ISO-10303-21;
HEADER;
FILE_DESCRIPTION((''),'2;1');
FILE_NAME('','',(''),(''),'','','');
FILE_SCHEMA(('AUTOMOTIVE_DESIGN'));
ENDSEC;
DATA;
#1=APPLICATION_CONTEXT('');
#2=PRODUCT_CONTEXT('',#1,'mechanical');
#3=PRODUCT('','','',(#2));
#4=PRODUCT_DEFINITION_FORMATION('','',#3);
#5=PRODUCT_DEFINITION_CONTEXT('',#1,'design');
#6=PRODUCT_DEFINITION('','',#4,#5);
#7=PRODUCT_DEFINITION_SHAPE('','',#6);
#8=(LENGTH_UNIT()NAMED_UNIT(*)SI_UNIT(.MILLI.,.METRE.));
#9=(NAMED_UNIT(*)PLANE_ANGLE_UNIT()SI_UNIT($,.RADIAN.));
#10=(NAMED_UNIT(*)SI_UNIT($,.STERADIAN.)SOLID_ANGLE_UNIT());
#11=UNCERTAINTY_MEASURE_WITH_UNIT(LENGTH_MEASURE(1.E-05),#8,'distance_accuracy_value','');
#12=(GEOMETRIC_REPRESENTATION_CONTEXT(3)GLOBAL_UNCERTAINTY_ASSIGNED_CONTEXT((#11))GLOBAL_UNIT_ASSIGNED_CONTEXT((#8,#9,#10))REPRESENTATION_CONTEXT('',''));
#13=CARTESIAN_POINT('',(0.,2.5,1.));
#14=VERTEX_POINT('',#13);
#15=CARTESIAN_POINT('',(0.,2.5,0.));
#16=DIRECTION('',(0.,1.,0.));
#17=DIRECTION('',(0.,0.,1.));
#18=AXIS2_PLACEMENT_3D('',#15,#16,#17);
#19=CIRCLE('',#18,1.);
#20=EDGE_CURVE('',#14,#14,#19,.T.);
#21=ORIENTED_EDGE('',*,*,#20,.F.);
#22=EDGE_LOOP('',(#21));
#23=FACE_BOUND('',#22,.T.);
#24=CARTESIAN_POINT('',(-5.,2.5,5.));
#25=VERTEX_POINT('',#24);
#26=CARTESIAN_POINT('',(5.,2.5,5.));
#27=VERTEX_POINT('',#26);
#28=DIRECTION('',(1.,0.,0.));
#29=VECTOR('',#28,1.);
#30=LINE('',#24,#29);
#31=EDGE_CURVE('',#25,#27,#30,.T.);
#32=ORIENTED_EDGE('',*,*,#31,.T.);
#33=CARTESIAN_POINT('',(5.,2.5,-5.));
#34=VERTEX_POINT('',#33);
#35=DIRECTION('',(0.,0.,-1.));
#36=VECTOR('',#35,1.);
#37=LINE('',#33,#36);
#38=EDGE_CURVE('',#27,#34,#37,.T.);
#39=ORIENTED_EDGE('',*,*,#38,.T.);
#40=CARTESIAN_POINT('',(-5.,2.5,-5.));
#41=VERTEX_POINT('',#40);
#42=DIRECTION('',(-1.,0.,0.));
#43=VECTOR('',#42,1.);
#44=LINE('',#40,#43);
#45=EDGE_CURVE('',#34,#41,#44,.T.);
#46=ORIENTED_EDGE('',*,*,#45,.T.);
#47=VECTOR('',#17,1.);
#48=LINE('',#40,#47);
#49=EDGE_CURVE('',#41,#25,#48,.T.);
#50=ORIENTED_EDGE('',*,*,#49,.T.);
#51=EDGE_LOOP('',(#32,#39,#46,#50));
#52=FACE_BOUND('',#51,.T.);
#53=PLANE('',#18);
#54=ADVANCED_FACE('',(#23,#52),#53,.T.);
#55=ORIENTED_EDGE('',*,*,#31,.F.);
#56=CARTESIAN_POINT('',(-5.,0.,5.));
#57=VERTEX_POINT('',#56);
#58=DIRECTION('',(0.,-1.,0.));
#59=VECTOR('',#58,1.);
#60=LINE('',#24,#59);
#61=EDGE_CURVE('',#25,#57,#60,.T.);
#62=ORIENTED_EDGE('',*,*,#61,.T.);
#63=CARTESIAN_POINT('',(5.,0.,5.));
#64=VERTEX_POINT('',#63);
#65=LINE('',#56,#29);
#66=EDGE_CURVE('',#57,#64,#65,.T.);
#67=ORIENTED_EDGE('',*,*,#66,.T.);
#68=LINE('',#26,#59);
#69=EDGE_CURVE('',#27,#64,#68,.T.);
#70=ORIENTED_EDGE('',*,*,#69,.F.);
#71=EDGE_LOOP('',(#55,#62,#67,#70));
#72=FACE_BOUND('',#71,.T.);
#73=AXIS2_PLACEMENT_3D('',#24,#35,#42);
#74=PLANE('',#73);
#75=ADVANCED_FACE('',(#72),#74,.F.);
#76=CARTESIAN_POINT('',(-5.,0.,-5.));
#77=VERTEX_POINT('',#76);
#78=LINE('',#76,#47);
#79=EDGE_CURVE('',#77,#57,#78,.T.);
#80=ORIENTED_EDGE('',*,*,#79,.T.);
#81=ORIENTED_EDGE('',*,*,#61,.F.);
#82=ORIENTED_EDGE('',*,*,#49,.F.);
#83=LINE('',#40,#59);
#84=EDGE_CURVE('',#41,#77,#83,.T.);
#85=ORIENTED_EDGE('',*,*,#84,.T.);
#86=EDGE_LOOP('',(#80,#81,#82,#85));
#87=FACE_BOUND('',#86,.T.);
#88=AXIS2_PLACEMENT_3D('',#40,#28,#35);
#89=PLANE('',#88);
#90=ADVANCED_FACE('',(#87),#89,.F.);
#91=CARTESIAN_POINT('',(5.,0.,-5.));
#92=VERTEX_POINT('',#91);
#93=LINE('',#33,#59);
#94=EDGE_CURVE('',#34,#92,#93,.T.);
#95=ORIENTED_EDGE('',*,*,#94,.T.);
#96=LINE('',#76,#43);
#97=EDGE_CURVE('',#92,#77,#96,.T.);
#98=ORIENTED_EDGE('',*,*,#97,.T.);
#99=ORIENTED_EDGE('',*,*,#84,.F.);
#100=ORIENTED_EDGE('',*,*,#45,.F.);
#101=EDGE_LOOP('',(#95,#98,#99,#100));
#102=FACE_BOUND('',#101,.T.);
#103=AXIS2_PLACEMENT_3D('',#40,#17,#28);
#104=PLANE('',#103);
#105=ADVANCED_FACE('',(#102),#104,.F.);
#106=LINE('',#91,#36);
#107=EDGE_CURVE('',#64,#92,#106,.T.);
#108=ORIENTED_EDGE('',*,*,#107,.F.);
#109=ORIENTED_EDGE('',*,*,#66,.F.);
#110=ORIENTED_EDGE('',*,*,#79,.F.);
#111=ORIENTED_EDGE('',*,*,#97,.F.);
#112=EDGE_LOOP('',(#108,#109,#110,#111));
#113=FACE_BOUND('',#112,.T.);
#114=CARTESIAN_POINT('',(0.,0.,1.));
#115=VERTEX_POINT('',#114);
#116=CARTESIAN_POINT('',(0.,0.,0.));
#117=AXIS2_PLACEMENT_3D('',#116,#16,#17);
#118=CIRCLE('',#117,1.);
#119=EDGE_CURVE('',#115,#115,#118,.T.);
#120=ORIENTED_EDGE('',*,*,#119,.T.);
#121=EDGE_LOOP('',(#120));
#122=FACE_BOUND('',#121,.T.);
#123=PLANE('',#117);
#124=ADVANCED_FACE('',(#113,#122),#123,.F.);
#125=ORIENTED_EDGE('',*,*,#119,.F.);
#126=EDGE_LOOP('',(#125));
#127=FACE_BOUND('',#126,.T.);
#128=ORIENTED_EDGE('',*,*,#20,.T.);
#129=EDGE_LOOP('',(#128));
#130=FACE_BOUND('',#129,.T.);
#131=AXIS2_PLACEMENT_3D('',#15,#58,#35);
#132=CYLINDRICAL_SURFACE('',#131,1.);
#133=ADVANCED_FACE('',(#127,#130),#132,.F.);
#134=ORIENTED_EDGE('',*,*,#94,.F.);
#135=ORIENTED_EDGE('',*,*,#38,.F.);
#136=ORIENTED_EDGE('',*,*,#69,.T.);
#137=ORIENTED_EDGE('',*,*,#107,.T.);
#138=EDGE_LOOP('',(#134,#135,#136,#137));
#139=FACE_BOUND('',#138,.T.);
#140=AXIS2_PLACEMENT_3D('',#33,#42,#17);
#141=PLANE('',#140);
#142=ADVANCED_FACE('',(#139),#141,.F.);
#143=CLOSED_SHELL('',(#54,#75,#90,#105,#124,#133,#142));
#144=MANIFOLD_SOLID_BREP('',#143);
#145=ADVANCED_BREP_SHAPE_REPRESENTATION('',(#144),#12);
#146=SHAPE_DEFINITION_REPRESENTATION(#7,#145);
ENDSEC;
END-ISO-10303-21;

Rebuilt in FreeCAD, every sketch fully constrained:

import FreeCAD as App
import Part
import Sketcher

V = App.Vector
Q = App.Units.Quantity

doc = App.newDocument("Part")
body = doc.addObject("PartDesign::Body", "Body")

sketch1 = doc.addObject("Sketcher::SketchObject", "Sketch")
body.addObject(sketch1)
sketch1.AttachmentSupport = (doc.XZ_Plane, [""])
sketch1.MapMode = "FlatFace"
sketch1.addGeometry(Part.LineSegment(V(-5, -5, 0), V(-5, 5, 0)), False)
sketch1.addGeometry(Part.LineSegment(V(-5, 5, 0), V(5, 5, 0)), False)
sketch1.addGeometry(Part.LineSegment(V(5, 5, 0), V(5, -5, 0)), False)
sketch1.addGeometry(Part.LineSegment(V(5, -5, 0), V(-5, -5, 0)), False)
sketch1.addGeometry(Part.Circle(V(0, 0, 0), V(0, 0, 1), 1), False)
sketch1.addConstraint(Sketcher.Constraint("Coincident", 0, 2, 1, 1))
sketch1.addConstraint(Sketcher.Constraint("Coincident", 1, 2, 2, 1))
sketch1.addConstraint(Sketcher.Constraint("Coincident", 2, 2, 3, 1))
sketch1.addConstraint(Sketcher.Constraint("Coincident", 3, 2, 0, 1))
sketch1.addConstraint(Sketcher.Constraint("Vertical", 0))
sketch1.addConstraint(Sketcher.Constraint("Horizontal", 1))
sketch1.addConstraint(Sketcher.Constraint("Vertical", 2))
sketch1.addConstraint(Sketcher.Constraint("Horizontal", 3))
sketch1.addConstraint(Sketcher.Constraint("Coincident", 4, 3, -1, 1))
sketch1.addConstraint(Sketcher.Constraint("Symmetric", 0, 2, 2, 2, -1, 1))
sketch1.addConstraint(Sketcher.Constraint("Equal", 3, 0))
sketch1.addConstraint(Sketcher.Constraint("Diameter", 4, Q("2 mm")))
sketch1.addConstraint(Sketcher.Constraint("DistanceX", 1, 1, 1, 2, Q("10 mm")))
pad1 = doc.addObject("PartDesign::Pad", "Pad")
body.addObject(pad1)
pad1.Profile = sketch1
pad1.Length = 2.5
pad1.Reversed = True

doc.recompute()
